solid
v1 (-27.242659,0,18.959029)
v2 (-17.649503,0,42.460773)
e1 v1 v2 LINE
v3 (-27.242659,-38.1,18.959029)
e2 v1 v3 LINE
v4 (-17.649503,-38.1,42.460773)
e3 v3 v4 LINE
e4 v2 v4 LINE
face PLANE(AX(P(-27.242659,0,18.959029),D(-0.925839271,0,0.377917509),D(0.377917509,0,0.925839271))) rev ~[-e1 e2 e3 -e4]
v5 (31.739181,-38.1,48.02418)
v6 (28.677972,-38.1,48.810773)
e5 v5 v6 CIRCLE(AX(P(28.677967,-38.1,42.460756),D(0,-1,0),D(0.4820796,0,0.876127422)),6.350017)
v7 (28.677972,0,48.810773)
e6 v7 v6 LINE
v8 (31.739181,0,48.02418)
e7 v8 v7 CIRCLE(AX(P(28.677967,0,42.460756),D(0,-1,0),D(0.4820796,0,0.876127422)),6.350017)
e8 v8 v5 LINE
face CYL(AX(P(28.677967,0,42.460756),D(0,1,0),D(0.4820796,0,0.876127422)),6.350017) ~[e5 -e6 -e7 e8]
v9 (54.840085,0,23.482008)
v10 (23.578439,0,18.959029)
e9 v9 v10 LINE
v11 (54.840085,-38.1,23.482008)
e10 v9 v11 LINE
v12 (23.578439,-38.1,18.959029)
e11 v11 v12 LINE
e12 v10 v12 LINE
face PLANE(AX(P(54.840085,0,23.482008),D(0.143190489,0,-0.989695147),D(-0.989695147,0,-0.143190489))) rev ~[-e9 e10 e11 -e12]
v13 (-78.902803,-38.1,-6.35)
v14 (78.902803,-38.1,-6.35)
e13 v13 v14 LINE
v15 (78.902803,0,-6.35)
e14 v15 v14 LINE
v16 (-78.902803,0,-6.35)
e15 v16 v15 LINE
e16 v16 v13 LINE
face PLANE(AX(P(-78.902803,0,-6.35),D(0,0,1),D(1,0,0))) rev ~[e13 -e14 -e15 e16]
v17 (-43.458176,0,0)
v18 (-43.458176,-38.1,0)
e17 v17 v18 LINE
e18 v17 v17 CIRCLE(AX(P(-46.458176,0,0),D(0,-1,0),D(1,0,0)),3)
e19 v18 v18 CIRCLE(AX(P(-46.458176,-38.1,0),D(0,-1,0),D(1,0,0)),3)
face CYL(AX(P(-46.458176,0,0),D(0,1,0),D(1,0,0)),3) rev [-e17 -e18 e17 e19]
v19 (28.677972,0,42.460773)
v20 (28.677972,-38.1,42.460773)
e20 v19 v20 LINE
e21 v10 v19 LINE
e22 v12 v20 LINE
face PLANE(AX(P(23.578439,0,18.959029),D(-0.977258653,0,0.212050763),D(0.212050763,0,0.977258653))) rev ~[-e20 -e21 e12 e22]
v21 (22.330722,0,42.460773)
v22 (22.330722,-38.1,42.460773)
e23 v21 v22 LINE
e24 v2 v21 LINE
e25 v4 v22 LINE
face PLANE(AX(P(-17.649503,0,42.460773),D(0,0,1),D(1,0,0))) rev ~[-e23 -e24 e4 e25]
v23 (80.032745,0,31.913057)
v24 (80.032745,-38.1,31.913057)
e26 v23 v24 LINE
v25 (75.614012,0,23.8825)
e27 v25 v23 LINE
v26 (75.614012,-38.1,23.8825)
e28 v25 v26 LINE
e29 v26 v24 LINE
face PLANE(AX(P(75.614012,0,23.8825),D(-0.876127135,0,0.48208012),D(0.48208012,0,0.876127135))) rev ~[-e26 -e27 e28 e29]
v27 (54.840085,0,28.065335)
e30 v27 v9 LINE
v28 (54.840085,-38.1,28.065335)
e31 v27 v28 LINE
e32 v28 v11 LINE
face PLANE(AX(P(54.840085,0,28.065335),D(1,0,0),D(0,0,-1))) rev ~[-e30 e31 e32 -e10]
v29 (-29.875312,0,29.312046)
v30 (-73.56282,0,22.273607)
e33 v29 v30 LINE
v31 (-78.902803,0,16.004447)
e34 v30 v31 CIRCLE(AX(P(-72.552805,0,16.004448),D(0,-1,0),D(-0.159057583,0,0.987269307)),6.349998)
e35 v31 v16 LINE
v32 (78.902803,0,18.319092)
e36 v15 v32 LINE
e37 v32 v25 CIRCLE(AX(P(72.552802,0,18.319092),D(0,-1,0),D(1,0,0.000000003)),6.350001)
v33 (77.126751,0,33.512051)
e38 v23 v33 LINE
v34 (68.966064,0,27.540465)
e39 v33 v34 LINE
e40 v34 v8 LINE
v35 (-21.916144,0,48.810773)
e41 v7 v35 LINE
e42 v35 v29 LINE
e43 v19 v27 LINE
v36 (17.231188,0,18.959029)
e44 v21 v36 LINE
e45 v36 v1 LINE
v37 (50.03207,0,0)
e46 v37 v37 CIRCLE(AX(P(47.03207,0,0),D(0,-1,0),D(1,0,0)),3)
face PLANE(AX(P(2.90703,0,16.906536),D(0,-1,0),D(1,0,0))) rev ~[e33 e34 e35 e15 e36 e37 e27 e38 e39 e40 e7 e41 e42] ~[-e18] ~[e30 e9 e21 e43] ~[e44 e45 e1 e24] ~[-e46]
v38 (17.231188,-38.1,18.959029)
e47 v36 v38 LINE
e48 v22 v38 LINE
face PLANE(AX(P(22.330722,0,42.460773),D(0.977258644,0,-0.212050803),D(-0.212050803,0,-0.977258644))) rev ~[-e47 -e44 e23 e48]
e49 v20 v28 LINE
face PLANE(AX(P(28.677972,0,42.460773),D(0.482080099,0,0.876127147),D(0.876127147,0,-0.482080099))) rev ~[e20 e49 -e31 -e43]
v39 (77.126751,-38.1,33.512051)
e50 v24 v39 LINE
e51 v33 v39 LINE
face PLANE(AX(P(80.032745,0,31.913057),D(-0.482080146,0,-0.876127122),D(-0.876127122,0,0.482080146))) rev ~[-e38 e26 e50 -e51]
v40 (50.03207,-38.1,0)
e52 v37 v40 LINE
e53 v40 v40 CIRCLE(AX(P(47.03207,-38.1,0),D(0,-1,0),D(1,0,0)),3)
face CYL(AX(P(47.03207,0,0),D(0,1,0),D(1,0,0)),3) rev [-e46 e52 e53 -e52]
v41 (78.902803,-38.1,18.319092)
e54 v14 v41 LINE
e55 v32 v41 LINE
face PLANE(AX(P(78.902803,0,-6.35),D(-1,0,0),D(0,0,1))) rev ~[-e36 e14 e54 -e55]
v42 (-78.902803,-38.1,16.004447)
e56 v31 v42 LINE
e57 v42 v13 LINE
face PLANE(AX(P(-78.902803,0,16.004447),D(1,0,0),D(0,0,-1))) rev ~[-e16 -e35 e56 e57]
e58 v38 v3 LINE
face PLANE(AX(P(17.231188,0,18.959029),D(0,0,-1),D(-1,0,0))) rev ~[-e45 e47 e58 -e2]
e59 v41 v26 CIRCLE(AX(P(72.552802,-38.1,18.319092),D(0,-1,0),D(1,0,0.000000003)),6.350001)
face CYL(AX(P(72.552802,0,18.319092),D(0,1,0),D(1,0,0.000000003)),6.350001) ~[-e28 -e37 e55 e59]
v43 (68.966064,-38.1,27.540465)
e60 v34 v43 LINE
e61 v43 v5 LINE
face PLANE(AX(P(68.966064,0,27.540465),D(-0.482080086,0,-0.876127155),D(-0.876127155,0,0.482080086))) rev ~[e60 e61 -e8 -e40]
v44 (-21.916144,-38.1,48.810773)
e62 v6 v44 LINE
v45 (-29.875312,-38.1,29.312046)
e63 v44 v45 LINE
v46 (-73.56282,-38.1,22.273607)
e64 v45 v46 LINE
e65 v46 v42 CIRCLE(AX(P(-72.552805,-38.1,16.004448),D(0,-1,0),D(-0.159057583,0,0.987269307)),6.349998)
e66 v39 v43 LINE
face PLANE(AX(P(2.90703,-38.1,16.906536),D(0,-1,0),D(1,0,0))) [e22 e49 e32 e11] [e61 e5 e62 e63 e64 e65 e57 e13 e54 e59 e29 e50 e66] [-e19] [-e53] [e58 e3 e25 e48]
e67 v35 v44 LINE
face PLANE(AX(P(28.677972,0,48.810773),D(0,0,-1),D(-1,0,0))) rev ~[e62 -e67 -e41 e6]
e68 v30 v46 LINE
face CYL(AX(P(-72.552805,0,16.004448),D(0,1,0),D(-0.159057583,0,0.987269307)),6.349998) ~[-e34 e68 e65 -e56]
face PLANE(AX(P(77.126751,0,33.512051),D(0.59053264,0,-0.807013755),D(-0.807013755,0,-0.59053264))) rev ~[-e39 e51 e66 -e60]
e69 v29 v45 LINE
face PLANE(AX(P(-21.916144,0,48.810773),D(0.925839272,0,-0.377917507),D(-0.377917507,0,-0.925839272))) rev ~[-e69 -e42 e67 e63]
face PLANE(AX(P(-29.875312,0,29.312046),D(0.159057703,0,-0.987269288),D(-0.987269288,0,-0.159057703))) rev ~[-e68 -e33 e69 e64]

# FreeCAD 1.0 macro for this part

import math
import FreeCAD as App
import Part
import Sketcher
from FreeCAD import Vector
Q = App.Units.Quantity

doc = App.newDocument("Part")
params = doc.addObject("Spreadsheet::Sheet", "Params")
for row, (alias, value) in enumerate([
    ("sketch1_radius", "0.2500001 in"),
    ("sketch1_radius2", "0.2499999 in"),
    ("pad1_length", "1.5 in"),
], start=1):
    params.set(f"A{row}", alias)
    params.set(f"B{row}", "=" + value)
    params.setAlias(f"B{row}", alias)

body = doc.addObject("PartDesign::Body", "Body")

# Sketch on XZ plane
sketch1 = body.newObject("Sketcher::SketchObject", "Sketch")
sketch1.AttachmentSupport = (doc.getObject("XZ_Plane"), [""])
sketch1.MapMode = "FlatFace"
sketch1.addGeometry(Part.LineSegment(Vector(-78.902803, -6.35, 0), Vector(78.902803, -6.35, 0)), False)
sketch1.addGeometry(Part.LineSegment(Vector(78.902803, -6.35, 0), Vector(78.902803, 18.319092, 0)), False)
sketch1.addGeometry(Part.ArcOfCircle(Part.Circle(Vector(72.552802, 18.319092, 0), Vector(0, 0, 1), 6.350001), math.radians(0), math.radians(61.178644)), False)
sketch1.addGeometry(Part.LineSegment(Vector(75.614012, 23.8825, 0), Vector(80.032745, 31.913057, 0)), False)
sketch1.addGeometry(Part.LineSegment(Vector(80.032745, 31.913057, 0), Vector(77.126751, 33.512051, 0)), False)
sketch1.addGeometry(Part.LineSegment(Vector(77.126751, 33.512051, 0), Vector(68.966064, 27.540465, 0)), False)
sketch1.addGeometry(Part.LineSegment(Vector(68.966064, 27.540465, 0), Vector(31.739181, 48.02418, 0)), False)
sketch1.addGeometry(Part.ArcOfCircle(Part.Circle(Vector(28.677967, 42.460756, 0), Vector(0, 0, 1), 6.350017), math.radians(61.178688), math.radians(89.999957)), False)
sketch1.addGeometry(Part.LineSegment(Vector(28.677972, 48.810773, 0), Vector(-21.916144, 48.810773, 0)), False)
sketch1.addGeometry(Part.LineSegment(Vector(-21.916144, 48.810773, 0), Vector(-29.875312, 29.312046, 0)), False)
sketch1.addGeometry(Part.LineSegment(Vector(-29.875312, 29.312046, 0), Vector(-73.56282, 22.273607, 0)), False)
sketch1.addGeometry(Part.ArcOfCircle(Part.Circle(Vector(-72.552805, 16.004448, 0), Vector(0, 0, 1), 6.349998), math.radians(99.152199), math.radians(180.000013)), False)
sketch1.addGeometry(Part.LineSegment(Vector(-78.902803, 16.004447, 0), Vector(-78.902803, -6.35, 0)), False)
sketch1.addGeometry(Part.Circle(Vector(-46.458176, 0, 0), Vector(0, 0, 1), 3), False)
sketch1.addGeometry(Part.Circle(Vector(47.03207, 0, 0), Vector(0, 0, 1), 3), False)
sketch1.addGeometry(Part.LineSegment(Vector(17.231188, 18.959029, 0), Vector(-27.242659, 18.959029, 0)), False)
sketch1.addGeometry(Part.LineSegment(Vector(-27.242659, 18.959029, 0), Vector(-17.649503, 42.460773, 0)), False)
sketch1.addGeometry(Part.LineSegment(Vector(-17.649503, 42.460773, 0), Vector(22.330722, 42.460773, 0)), False)
sketch1.addGeometry(Part.LineSegment(Vector(22.330722, 42.460773, 0), Vector(17.231188, 18.959029, 0)), False)
sketch1.addGeometry(Part.LineSegment(Vector(54.840085, 23.482008, 0), Vector(23.578439, 18.959029, 0)), False)
sketch1.addGeometry(Part.LineSegment(Vector(23.578439, 18.959029, 0), Vector(28.677972, 42.460773, 0)), False)
sketch1.addGeometry(Part.LineSegment(Vector(28.677972, 42.460773, 0), Vector(54.840085, 28.065335, 0)), False)
sketch1.addGeometry(Part.LineSegment(Vector(54.840085, 28.065335, 0), Vector(54.840085, 23.482008, 0)), False)
sketch1.addConstraint(Sketcher.Constraint("Coincident", 0, 2, 1, 1))
sketch1.addConstraint(Sketcher.Constraint("Coincident", 1, 2, 2, 1))
sketch1.addConstraint(Sketcher.Constraint("Coincident", 2, 2, 3, 1))
sketch1.addConstraint(Sketcher.Constraint("Coincident", 3, 2, 4, 1))
sketch1.addConstraint(Sketcher.Constraint("Coincident", 4, 2, 5, 1))
sketch1.addConstraint(Sketcher.Constraint("Coincident", 5, 2, 6, 1))
sketch1.addConstraint(Sketcher.Constraint("Coincident", 6, 2, 7, 1))
sketch1.addConstraint(Sketcher.Constraint("Coincident", 7, 2, 8, 1))
sketch1.addConstraint(Sketcher.Constraint("Coincident", 8, 2, 9, 1))
sketch1.addConstraint(Sketcher.Constraint("Coincident", 9, 2, 10, 1))
sketch1.addConstraint(Sketcher.Constraint("Coincident", 10, 2, 11, 1))
sketch1.addConstraint(Sketcher.Constraint("Coincident", 11, 2, 12, 1))
sketch1.addConstraint(Sketcher.Constraint("Coincident", 12, 2, 0, 1))
sketch1.addConstraint(Sketcher.Constraint("Coincident", 15, 2, 16, 1))
sketch1.addConstraint(Sketcher.Constraint("Coincident", 16, 2, 17, 1))
sketch1.addConstraint(Sketcher.Constraint("Coincident", 17, 2, 18, 1))
sketch1.addConstraint(Sketcher.Constraint("Coincident", 18, 2, 15, 1))
sketch1.addConstraint(Sketcher.Constraint("Coincident", 19, 2, 20, 1))
sketch1.addConstraint(Sketcher.Constraint("Coincident", 20, 2, 21, 1))
sketch1.addConstraint(Sketcher.Constraint("Coincident", 21, 2, 22, 1))
sketch1.addConstraint(Sketcher.Constraint("Coincident", 22, 2, 19, 1))
sketch1.addConstraint(Sketcher.Constraint("Horizontal", 0))
sketch1.addConstraint(Sketcher.Constraint("Vertical", 1))
sketch1.addConstraint(Sketcher.Constraint("Horizontal", 8))
sketch1.addConstraint(Sketcher.Constraint("Vertical", 12))
sketch1.addConstraint(Sketcher.Constraint("Horizontal", 15))
sketch1.addConstraint(Sketcher.Constraint("Horizontal", 17))
sketch1.addConstraint(Sketcher.Constraint("Vertical", 22))
sketch1.addConstraint(Sketcher.Constraint("PointOnObject", 13, 3, -1))
sketch1.addConstraint(Sketcher.Constraint("PointOnObject", 14, 3, -1))
sketch1.addConstraint(Sketcher.Constraint("Radius", 2, Q("0.2500001 in")))
sketch1.addConstraint(Sketcher.Constraint("Radius", 11, Q("0.2499999 in")))
sketch1.addConstraint(Sketcher.Constraint("Diameter", 13, Q("6 mm")))
sketch1.addConstraint(Sketcher.Constraint("Diameter", 14, Q("6 mm")))
sketch1.addConstraint(Sketcher.Constraint("DistanceY", 0, 2, -1, 1, Q("0.25 in")))
sketch1.addConstraint(Sketcher.Constraint("DistanceY", 16, 2, 8, 2, Q("0.25 in")))
sketch1.addConstraint(Sketcher.Constraint("DistanceY", 20, 2, 7, 2, Q("0.25 in")))
sketch1.addConstraint(Sketcher.Constraint("Radius", 7, Q("6.350017 mm")))
sketch1.addConstraint(Sketcher.Constraint("DistanceY", 1, 1, 1, 2, Q("24.669092 mm")))
sketch1.addConstraint(Sketcher.Constraint("DistanceX", -1, 1, 2, 3, Q("72.552802 mm")))
sketch1.addConstraint(Sketcher.Constraint("DistanceY", -1, 1, 2, 2, Q("23.8825 mm")))
sketch1.addConstraint(Sketcher.Constraint("DistanceY", 11, 2, 9, 2, Q("13.307599 mm")))
sketch1.addConstraint(Sketcher.Constraint("Distance", 16, Q("25.384259 mm")))
sketch1.addConstraint(Sketcher.Constraint("Distance", 21, Q("29.861092 mm")))
sketch1.addConstraint(Sketcher.Constraint("DistanceX", 0, 1, 0, 2, Q("157.805606 mm")))
sketch1.addConstraint(Sketcher.Constraint("DistanceX", 8, 2, 8, 1, Q("50.594116 mm")))
sketch1.addConstraint(Sketcher.Constraint("DistanceX", 15, 2, 15, 1, Q("44.473847 mm")))
sketch1.addConstraint(Sketcher.Constraint("DistanceX", 17, 1, 17, 2, Q("39.980225 mm")))
sketch1.addConstraint(Sketcher.Constraint("DistanceY", 12, 2, 12, 1, Q("22.354447 mm")))
sketch1.addConstraint(Sketcher.Constraint("DistanceY", 22, 2, 22, 1, Q("4.583327 mm")))
sketch1.addConstraint(Sketcher.Constraint("DistanceY", -1, 1, 2, 3, Q("18.319092 mm")))
sketch1.addConstraint(Sketcher.Constraint("DistanceY", -1, 1, 11, 3, Q("16.004448 mm")))
sketch1.addConstraint(Sketcher.Constraint("DistanceX", -1, 1, 14, 3, Q("47.03207 mm")))
sketch1.addConstraint(Sketcher.Constraint("DistanceX", -1, 1, 4, 2, Q("77.126751 mm")))
sketch1.addConstraint(Sketcher.Constraint("DistanceY", -1, 1, 4, 2, Q("33.512051 mm")))
sketch1.addConstraint(Sketcher.Constraint("DistanceX", -1, 1, 6, 2, Q("31.739181 mm")))
sketch1.addConstraint(Sketcher.Constraint("DistanceY", -1, 1, 6, 2, Q("48.02418 mm")))
sketch1.addConstraint(Sketcher.Constraint("DistanceX", 10, 2, -1, 1, Q("73.56282 mm")))
sketch1.addConstraint(Sketcher.Constraint("DistanceX", 15, 2, -1, 1, Q("27.242659 mm")))
sketch1.addConstraint(Sketcher.Constraint("DistanceY", -1, 1, 15, 2, Q("18.959029 mm")))
sketch1.addConstraint(Sketcher.Constraint("DistanceX", -1, 1, 19, 2, Q("23.578439 mm")))
sketch1.addConstraint(Sketcher.Constraint("DistanceY", -1, 1, 19, 2, Q("18.959029 mm")))
sketch1.addConstraint(Sketcher.Constraint("DistanceY", -1, 1, 22, 2, Q("23.482008 mm")))
sketch1.addConstraint(Sketcher.Constraint("DistanceX", 11, 3, 7, 3, Q("101.230772 mm")))
sketch1.addConstraint(Sketcher.Constraint("DistanceX", 11, 3, 13, 3, Q("26.094629 mm")))
sketch1.addConstraint(Sketcher.Constraint("DistanceX", 1, 2, 3, 2, Q("1.129942 mm")))
sketch1.addConstraint(Sketcher.Constraint("DistanceX", 5, 2, 2, 2, Q("6.647948 mm")))
sketch1.addConstraint(Sketcher.Constraint("DistanceY", 5, 2, 3, 2, Q("4.372592 mm")))
sketch1.addConstraint(Sketcher.Constraint("DistanceX", 7, 2, 6, 2, Q("3.061209 mm")))
sketch1.addConstraint(Sketcher.Constraint("DistanceX", 9, 2, 8, 2, Q("7.959168 mm")))
sketch1.addConstraint(Sketcher.Constraint("DistanceX", 17, 2, 20, 2, Q("6.34725 mm")))
sketch1.addConstraint(Sketcher.Constraint("DistanceY", 5, 2, 21, 2, Q("0.52487 mm")))
sketch1.setExpression("Constraints[30]", "Params.sketch1_radius")
sketch1.setExpression("Constraints[31]", "Params.sketch1_radius2")
pad1 = body.newObject("PartDesign::Pad", "Pad")
pad1.Profile = sketch1
pad1.setExpression("Length", "Params.pad1_length")

doc.recompute()
